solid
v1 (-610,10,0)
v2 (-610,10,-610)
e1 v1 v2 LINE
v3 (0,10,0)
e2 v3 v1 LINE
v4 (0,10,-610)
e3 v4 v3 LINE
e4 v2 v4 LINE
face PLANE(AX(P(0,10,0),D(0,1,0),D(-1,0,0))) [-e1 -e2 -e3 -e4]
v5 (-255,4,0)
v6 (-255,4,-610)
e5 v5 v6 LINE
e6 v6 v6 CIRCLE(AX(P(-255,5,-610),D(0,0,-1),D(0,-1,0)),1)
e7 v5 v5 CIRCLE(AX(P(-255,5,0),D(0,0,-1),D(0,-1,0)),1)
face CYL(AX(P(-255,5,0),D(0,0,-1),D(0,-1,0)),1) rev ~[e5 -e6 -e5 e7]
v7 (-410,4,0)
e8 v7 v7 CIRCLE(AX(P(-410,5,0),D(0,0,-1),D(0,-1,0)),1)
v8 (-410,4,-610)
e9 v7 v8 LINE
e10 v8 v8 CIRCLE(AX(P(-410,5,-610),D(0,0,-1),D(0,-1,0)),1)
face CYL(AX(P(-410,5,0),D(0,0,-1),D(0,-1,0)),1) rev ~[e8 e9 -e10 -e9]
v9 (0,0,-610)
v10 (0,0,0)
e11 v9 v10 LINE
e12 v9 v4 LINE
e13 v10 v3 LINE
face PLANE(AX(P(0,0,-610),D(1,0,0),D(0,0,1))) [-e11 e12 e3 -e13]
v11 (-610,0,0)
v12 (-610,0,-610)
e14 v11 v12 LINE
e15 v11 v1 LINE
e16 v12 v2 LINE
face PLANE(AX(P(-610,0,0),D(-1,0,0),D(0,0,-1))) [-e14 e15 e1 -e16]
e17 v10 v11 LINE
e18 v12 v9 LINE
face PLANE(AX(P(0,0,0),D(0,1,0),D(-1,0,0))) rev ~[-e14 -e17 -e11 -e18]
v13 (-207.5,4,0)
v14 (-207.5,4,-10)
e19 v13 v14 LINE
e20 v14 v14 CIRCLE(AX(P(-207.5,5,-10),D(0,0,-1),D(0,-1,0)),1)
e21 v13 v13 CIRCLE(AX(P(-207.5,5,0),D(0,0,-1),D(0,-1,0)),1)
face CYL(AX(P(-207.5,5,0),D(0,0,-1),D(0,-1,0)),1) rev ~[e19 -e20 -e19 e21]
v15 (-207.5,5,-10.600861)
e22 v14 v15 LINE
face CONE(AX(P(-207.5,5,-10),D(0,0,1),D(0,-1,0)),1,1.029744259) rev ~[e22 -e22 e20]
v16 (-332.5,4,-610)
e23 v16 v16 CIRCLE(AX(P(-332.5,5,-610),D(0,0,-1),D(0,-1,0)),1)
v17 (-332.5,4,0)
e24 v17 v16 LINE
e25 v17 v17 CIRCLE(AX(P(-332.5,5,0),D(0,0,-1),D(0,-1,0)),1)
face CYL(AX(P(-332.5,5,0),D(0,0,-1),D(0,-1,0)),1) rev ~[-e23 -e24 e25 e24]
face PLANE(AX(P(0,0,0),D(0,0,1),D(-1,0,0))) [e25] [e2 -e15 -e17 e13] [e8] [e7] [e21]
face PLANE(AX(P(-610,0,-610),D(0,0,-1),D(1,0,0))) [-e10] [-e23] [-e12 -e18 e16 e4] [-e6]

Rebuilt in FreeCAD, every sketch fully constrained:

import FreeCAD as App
import Part
import Sketcher
from FreeCAD import Vector
Q = App.Units.Quantity

doc = App.newDocument("Part")
body = doc.addObject("PartDesign::Body", "Body")

# Sketch on XZ plane
sketch1 = doc.addObject("Sketcher::SketchObject", "Sketch")
body.addObject(sketch1)
sketch1.AttachmentSupport = (doc.XZ_Plane, [""])
sketch1.MapMode = "FlatFace"
sketch1.addGeometry(Part.LineSegment(Vector(-610, 0, 0), Vector(0, 0, 0)), False)
sketch1.addGeometry(Part.LineSegment(Vector(0, 0, 0), Vector(0, -610, 0)), False)
sketch1.addGeometry(Part.LineSegment(Vector(0, -610, 0), Vector(-610, -610, 0)), False)
sketch1.addGeometry(Part.LineSegment(Vector(-610, -610, 0), Vector(-610, 0, 0)), False)
sketch1.addConstraint(Sketcher.Constraint("Coincident", 0, 2, 1, 1))
sketch1.addConstraint(Sketcher.Constraint("Coincident", 1, 2, 2, 1))
sketch1.addConstraint(Sketcher.Constraint("Coincident", 2, 2, 3, 1))
sketch1.addConstraint(Sketcher.Constraint("Coincident", 3, 2, 0, 1))
sketch1.addConstraint(Sketcher.Constraint("Horizontal", 0))
sketch1.addConstraint(Sketcher.Constraint("Vertical", 1))
sketch1.addConstraint(Sketcher.Constraint("Horizontal", 2))
sketch1.addConstraint(Sketcher.Constraint("Vertical", 3))
sketch1.addConstraint(Sketcher.Constraint("Coincident", 0, 2, -1, 1))
sketch1.addConstraint(Sketcher.Constraint("Equal", 2, 1))
sketch1.addConstraint(Sketcher.Constraint("DistanceX", 0, 1, 0, 2, Q("610 mm")))
pad1 = doc.addObject("PartDesign::Pad", "Pad")
body.addObject(pad1)
pad1.Profile = sketch1
pad1.Length = 10
pad1.Reversed = True

# Sketch on XY plane
sketch2 = doc.addObject("Sketcher::SketchObject", "Sketch001")
body.addObject(sketch2)
sketch2.AttachmentSupport = (doc.XY_Plane, [""])
sketch2.MapMode = "FlatFace"
sketch2.addGeometry(Part.Circle(Vector(-410, 5, 0), Vector(0, 0, 1), 1), False)
sketch2.addConstraint(Sketcher.Constraint("Diameter", 0, Q("2 mm")))
sketch2.addConstraint(Sketcher.Constraint("DistanceX", 0, 3, -1, 1, Q("410 mm")))
sketch2.addConstraint(Sketcher.Constraint("DistanceY", -1, 1, 0, 3, Q("5 mm")))
doc.recompute()
hole = doc.addObject("PartDesign::Hole", "Hole")
body.addObject(hole)
hole.Profile = sketch2
hole.ThreadType = "None"
hole.Diameter = 2
hole.DepthType = "ThroughAll"
doc.recompute()

linearpattern = doc.addObject("PartDesign::LinearPattern", "LinearPattern")
body.addObject(linearpattern)
linearpattern.Originals = [hole]
linearpattern.Direction = (doc.X_Axis, [""])
linearpattern.Mode = "offset"
linearpattern.Offset = 155
linearpattern.Occurrences = 2
body.Tip = linearpattern

# Sketch on XY plane
sketch3 = doc.addObject("Sketcher::SketchObject", "Sketch002")
body.addObject(sketch3)
sketch3.AttachmentSupport = (doc.XY_Plane, [""])
sketch3.MapMode = "FlatFace"
sketch3.addGeometry(Part.Circle(Vector(-207.5, 5, 0), Vector(0, 0, 1), 1), False)
sketch3.addConstraint(Sketcher.Constraint("Diameter", 0, Q("2 mm")))
sketch3.addConstraint(Sketcher.Constraint("DistanceY", -1, 1, 0, 3, Q("5 mm")))
sketch3.addConstraint(Sketcher.Constraint("DistanceX", 0, 3, -1, 1, Q("207.5 mm")))
doc.recompute()
hole2 = doc.addObject("PartDesign::Hole", "Hole001")
body.addObject(hole2)
hole2.Profile = sketch3
hole2.ThreadType = "None"
hole2.Diameter = 2
hole2.DepthType = "Dimension"
hole2.Depth = 10
hole2.DrillPoint = "Angled"
hole2.DrillPointAngle = 118
doc.recompute()

linearpattern2 = doc.addObject("PartDesign::LinearPattern", "LinearPattern001")
body.addObject(linearpattern2)
linearpattern2.Originals = [hole]
linearpattern2.Direction = (doc.X_Axis, [""])
linearpattern2.Mode = "offset"
linearpattern2.Offset = 77.5
linearpattern2.Occurrences = 2
body.Tip = linearpattern2

doc.recompute()
